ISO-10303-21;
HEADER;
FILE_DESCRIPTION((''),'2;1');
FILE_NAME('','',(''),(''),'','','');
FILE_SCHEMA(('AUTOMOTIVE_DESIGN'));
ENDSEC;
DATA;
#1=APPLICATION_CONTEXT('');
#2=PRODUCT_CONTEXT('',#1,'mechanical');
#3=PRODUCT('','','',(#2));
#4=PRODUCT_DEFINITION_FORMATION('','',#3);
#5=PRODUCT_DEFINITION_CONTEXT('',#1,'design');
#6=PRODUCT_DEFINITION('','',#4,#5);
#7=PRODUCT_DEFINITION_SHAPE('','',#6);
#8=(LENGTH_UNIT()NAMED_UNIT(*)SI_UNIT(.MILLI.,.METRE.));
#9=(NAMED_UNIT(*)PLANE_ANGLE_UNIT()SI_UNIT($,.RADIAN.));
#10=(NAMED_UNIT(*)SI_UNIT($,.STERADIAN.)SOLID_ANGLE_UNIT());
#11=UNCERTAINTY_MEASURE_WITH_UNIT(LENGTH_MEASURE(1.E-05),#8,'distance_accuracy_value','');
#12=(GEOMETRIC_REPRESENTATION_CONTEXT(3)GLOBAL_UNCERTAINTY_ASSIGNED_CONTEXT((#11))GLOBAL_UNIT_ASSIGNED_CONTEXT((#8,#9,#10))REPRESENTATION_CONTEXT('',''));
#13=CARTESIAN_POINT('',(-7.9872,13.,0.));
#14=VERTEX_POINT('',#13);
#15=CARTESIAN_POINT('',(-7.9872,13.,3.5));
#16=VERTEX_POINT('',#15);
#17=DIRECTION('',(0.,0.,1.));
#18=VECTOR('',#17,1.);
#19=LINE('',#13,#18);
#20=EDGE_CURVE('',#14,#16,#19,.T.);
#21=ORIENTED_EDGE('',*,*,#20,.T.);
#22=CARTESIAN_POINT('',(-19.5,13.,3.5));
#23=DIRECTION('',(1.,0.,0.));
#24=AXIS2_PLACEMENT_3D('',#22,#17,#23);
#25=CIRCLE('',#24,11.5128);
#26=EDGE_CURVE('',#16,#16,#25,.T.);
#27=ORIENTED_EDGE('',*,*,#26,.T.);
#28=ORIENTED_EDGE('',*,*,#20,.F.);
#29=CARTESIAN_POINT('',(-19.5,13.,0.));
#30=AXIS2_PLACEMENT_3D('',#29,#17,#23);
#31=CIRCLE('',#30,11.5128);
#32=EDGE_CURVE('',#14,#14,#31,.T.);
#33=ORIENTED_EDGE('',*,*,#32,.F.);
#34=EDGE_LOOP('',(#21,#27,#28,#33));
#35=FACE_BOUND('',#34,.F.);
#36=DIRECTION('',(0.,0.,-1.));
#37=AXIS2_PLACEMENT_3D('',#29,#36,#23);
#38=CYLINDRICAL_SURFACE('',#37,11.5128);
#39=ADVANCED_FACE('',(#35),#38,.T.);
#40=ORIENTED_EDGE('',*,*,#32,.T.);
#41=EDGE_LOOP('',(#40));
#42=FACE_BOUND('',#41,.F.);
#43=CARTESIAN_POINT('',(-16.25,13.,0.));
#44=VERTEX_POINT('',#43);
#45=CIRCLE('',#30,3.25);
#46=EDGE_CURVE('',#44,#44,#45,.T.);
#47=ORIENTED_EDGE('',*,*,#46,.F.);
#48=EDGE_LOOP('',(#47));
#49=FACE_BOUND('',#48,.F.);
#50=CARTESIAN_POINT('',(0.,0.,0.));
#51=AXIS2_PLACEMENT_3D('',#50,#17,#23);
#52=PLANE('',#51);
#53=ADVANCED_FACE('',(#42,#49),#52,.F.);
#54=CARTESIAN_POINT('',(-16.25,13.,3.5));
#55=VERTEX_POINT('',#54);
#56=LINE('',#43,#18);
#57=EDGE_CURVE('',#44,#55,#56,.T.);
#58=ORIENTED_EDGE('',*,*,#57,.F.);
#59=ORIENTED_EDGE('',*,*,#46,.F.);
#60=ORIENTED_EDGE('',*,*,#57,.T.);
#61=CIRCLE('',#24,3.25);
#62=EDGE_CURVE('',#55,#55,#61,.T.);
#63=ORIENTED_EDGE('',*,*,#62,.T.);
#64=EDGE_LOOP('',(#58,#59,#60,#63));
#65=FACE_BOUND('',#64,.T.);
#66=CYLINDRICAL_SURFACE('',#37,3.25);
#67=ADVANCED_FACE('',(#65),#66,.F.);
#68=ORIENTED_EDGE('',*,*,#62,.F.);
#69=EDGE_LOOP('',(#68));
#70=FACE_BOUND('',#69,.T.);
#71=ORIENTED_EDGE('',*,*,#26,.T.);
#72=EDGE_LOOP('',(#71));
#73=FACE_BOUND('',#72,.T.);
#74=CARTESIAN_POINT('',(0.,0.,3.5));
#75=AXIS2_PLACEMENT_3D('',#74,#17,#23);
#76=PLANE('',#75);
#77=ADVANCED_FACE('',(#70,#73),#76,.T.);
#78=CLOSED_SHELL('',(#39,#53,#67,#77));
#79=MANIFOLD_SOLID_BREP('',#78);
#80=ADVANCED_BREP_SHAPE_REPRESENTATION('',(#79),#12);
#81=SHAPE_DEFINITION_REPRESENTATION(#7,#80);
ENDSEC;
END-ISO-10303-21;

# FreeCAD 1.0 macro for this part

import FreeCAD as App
import Part
import Sketcher
from FreeCAD import Vector

doc = App.newDocument("Part")
body = doc.addObject("PartDesign::Body", "Body")

sketch1 = doc.addObject("Sketcher::SketchObject", "Sketch")
body.addObject(sketch1)
sketch1.AttachmentSupport = (doc.XY_Plane, [""])
sketch1.MapMode = "FlatFace"
sketch1.addGeometry([
    Part.Circle(Vector(-19.5, 13, 0), Vector(0, 0, 1), 11.5128),
    Part.Circle(Vector(-19.5, 13, 0), Vector(0, 0, 1), 3.25),
], False)
sketch1.addConstraint([
    Sketcher.Constraint("Coincident", 1, 3, 0, 3),
    Sketcher.Constraint("Diameter", 1, 6.5),
    Sketcher.Constraint("DistanceY", -1, 1, 0, 3, 13.0),
    Sketcher.Constraint("Diameter", 0, 23.0256),
    Sketcher.Constraint("DistanceX", 0, 3, -1, 1, 19.5),
])
pad1 = doc.addObject("PartDesign::Pad", "Pad")
body.addObject(pad1)
pad1.Profile = sketch1
pad1.Length = 3.5

doc.recompute()
